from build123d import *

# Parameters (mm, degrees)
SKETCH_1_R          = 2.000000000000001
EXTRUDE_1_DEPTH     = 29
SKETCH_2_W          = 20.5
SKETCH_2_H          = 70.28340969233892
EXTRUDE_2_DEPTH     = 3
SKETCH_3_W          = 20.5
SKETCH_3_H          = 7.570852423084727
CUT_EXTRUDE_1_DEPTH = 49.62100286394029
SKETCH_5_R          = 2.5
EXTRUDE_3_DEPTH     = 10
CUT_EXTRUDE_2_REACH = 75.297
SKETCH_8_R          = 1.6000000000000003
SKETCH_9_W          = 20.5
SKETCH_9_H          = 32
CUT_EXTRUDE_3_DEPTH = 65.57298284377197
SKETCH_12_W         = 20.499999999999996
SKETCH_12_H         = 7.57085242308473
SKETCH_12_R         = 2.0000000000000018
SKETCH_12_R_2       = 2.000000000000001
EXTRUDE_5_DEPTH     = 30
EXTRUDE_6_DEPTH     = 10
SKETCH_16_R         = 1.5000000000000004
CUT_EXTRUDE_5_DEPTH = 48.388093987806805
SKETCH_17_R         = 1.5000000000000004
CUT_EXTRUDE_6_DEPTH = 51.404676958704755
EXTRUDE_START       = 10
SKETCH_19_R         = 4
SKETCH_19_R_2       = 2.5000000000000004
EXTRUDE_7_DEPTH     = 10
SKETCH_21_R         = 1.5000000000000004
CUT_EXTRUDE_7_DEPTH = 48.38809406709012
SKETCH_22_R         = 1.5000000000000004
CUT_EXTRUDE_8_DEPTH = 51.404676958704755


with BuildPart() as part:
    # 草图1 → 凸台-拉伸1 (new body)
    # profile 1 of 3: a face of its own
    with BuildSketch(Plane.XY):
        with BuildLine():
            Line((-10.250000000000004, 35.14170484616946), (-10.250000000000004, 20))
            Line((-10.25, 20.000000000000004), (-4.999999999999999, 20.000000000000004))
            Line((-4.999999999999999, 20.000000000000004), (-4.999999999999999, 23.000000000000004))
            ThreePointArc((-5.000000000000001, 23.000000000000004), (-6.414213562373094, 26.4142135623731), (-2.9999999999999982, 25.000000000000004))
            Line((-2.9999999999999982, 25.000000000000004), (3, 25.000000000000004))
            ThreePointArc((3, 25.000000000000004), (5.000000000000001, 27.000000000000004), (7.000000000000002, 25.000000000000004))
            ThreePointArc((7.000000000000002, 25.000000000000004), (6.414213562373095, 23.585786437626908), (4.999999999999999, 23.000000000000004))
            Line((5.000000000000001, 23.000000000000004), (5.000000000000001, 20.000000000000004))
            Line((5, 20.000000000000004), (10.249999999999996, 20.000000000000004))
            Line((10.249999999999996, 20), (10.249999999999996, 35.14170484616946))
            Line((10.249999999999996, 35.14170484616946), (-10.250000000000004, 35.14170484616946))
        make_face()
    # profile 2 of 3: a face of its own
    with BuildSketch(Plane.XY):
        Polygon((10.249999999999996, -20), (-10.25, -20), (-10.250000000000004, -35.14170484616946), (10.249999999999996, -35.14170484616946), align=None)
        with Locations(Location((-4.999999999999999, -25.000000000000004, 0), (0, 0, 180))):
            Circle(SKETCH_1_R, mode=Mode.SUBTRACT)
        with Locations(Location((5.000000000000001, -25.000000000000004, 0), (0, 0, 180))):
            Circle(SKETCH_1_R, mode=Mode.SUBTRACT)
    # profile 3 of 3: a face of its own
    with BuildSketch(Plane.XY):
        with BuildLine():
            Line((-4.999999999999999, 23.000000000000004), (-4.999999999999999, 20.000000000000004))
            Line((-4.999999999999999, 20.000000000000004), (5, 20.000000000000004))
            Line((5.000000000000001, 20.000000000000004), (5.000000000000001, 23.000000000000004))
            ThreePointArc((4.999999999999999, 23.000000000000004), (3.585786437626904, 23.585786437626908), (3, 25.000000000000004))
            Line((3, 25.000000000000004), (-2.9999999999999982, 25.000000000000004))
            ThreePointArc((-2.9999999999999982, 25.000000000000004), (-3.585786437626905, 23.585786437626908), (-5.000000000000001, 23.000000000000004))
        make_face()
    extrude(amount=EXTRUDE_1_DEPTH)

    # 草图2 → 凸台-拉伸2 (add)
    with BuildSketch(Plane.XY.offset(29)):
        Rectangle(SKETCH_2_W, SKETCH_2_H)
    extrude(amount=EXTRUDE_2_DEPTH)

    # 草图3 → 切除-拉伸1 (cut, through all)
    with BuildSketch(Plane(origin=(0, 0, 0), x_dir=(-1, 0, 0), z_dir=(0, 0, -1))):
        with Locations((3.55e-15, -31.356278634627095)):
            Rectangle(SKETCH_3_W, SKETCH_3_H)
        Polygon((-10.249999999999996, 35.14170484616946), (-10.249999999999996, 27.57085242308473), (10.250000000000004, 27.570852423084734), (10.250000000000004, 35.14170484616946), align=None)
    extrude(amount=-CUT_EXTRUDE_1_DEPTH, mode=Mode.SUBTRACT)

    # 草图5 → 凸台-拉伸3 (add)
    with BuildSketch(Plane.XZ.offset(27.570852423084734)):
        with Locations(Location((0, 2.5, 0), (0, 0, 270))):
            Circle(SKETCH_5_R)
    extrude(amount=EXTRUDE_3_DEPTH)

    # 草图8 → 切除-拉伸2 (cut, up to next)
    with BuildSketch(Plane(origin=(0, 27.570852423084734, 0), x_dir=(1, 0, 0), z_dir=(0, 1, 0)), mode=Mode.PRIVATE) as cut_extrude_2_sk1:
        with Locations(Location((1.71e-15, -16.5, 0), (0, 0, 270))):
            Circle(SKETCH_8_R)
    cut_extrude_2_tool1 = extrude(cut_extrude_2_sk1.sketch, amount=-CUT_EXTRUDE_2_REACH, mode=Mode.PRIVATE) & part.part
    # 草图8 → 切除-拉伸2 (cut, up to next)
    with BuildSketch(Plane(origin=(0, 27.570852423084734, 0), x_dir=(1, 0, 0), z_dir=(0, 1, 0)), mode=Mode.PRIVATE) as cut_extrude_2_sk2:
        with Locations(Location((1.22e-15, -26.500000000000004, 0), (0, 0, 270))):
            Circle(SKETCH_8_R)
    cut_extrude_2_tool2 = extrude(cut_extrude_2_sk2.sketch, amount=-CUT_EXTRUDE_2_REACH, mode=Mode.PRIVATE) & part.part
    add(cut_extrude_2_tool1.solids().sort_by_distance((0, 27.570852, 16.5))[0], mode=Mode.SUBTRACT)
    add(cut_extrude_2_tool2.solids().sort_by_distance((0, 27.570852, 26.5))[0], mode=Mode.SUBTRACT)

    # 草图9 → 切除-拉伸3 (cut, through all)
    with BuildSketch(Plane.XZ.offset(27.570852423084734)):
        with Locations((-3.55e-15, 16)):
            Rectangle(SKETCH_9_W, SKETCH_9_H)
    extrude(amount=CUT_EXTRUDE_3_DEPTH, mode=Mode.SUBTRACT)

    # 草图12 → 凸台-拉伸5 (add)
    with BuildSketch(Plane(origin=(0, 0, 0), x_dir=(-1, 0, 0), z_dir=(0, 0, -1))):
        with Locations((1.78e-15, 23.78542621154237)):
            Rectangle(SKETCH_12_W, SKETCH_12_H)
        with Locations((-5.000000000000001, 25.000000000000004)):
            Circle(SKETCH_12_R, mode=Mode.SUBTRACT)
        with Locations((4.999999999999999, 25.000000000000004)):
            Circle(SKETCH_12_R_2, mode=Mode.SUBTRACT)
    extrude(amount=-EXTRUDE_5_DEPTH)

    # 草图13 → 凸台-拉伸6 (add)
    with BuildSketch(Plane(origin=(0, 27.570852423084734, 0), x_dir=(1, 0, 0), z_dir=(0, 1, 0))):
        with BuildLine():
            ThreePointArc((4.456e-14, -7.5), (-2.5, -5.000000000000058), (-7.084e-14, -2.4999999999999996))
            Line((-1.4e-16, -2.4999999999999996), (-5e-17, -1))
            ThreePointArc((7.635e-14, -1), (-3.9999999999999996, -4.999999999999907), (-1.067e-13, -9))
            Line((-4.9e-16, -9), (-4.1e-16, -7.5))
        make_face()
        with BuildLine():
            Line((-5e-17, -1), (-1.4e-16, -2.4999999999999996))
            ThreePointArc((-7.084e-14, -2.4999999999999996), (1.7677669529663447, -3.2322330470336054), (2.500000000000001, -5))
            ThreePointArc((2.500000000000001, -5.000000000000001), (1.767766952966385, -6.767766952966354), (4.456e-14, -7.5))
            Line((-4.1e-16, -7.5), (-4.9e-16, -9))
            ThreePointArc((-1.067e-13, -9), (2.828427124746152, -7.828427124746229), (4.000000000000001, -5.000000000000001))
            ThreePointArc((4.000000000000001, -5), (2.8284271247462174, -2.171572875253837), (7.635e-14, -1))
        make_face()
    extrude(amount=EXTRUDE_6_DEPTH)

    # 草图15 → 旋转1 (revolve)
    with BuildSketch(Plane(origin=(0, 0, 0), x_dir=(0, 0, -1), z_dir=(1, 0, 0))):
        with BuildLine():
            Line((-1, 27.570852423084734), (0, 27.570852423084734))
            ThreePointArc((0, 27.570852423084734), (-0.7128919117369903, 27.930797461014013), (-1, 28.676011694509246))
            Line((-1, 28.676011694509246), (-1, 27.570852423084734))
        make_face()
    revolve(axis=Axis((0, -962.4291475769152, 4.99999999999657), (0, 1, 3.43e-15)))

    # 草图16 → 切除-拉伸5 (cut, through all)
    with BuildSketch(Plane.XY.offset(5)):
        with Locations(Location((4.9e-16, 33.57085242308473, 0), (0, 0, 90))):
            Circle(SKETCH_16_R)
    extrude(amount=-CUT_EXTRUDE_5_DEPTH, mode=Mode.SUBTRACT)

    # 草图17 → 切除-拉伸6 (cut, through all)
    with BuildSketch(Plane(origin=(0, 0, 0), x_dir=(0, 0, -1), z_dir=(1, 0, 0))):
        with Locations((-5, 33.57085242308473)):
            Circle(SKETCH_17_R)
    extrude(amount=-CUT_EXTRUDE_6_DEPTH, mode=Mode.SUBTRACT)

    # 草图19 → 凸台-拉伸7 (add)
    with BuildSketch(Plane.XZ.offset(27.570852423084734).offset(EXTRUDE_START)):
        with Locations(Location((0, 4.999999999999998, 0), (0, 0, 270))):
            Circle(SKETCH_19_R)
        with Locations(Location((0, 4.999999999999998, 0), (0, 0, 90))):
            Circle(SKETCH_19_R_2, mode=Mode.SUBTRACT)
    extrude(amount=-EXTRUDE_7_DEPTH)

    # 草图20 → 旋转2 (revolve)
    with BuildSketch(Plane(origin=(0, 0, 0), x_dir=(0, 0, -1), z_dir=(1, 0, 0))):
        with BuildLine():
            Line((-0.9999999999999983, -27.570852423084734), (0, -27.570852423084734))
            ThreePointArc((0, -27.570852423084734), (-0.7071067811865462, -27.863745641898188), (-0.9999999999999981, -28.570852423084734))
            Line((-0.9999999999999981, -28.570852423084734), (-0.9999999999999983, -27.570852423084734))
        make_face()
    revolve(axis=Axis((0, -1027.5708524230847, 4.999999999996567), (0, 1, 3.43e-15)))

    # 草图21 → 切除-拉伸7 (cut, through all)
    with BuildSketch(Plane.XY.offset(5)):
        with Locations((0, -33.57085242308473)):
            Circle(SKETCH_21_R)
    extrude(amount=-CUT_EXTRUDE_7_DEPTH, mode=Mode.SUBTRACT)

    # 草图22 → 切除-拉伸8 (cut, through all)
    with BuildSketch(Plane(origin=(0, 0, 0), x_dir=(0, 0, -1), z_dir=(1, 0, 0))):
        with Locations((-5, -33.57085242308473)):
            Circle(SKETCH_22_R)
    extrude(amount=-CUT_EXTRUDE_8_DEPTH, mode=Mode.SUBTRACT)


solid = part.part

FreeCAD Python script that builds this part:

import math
import FreeCAD as App
import Part
import Sketcher

V = App.Vector


def add_polygon(sketch, points):
    """Adds a closed chain of lines whose ends are joined by coincident constraints."""
    first, n = sketch.GeometryCount, len(points)
    for a, b in zip(points, points[1:] + points[:1]):
        sketch.addGeometry(Part.LineSegment(App.Vector(*a, 0), App.Vector(*b, 0)), False)
    for i in range(n):
        sketch.addConstraint(Sketcher.Constraint("Coincident", first + i, 2, first + (i + 1) % n, 1))

doc = App.newDocument("Part")
body = doc.addObject("PartDesign::Body", "Body")
body.AllowCompound = True

# Sketch on XY plane
sketch1 = doc.addObject("Sketcher::SketchObject", "Sketch")
body.addObject(sketch1)
sketch1.AttachmentSupport = (doc.XY_Plane, [""])
sketch1.MapMode = "FlatFace"
add_polygon(sketch1, [(-10.2, 35.1), (-10.2, 20), (10.2, 20), (10.2, 35.1)])  # lines 0-3
sketch1.addGeometry(Part.Circle(V(-5, 25, 0), V(0, 0, 1), 2), False)  # 4
sketch1.addGeometry(Part.Circle(V(5, 25, 0), V(0, 0, 1), 2), False)  # 5
add_polygon(sketch1, [(10.2, -20), (-10.2, -20), (-10.2, -35.1), (10.2, -35.1)])  # lines 6-9
sketch1.addGeometry(Part.Circle(V(-5, -25, 0), V(0, 0, 1), 2), False)  # 10
sketch1.addGeometry(Part.Circle(V(5, -25, 0), V(0, 0, 1), 2), False)  # 11
sketch1.addConstraint([
    Sketcher.Constraint("Vertical", 0),
    Sketcher.Constraint("Horizontal", 1),
    Sketcher.Constraint("Vertical", 2),
    Sketcher.Constraint("Horizontal", 3),
    Sketcher.Constraint("Horizontal", 6),
    Sketcher.Constraint("Vertical", 7),
    Sketcher.Constraint("Horizontal", 8),
    Sketcher.Constraint("Vertical", 9),
    Sketcher.Constraint("Equal", 4, 5),
    Sketcher.Constraint("Equal", 5, 10),
    Sketcher.Constraint("Equal", 10, 11),
    Sketcher.Constraint("Symmetric", 5, 3, 10, 3, -1, 1),
    Sketcher.Constraint("Symmetric", 4, 3, 11, 3, -1, 1),
    Sketcher.Constraint("Symmetric", 1, 2, 6, 2, -1, 1),
    Sketcher.Constraint("Symmetric", 3, 2, 8, 2, -1, 1),
    Sketcher.Constraint("Symmetric", 4, 3, 5, 3, -2),
    Sketcher.Constraint("Vertical", 3, 2, 6, 2),
    Sketcher.Constraint("Diameter", 4, 4.0),
    Sketcher.Constraint("DistanceX", 1, 1, 1, 2, 20.5),
    Sketcher.Constraint("DistanceX", 4, 3, -1, 1, 5.0),
    Sketcher.Constraint("DistanceY", -1, 1, 4, 3, 25.0),
    Sketcher.Constraint("DistanceY", -1, 1, 0, 2, 20.0),
    Sketcher.Constraint("DistanceY", 0, 2, 0, 1, 15.141705),
])
pad1 = doc.addObject("PartDesign::Pad", "Pad")
body.addObject(pad1)
pad1.Profile = sketch1
pad1.Length = 29

# Sketch on XY plane
sketch2 = doc.addObject("Sketcher::SketchObject", "Sketch001")
body.addObject(sketch2)
sketch2.AttachmentSupport = (doc.XY_Plane, [""])
sketch2.MapMode = "FlatFace"
sketch2.AttachmentOffset = App.Placement(V(0, 0, 29), App.Rotation())
add_polygon(sketch2, [(-10, 35), (-10, -35), (10, -35), (10, 35)])  # lines 0-3
sketch2.addConstraint([
    Sketcher.Constraint("Vertical", 0),
    Sketcher.Constraint("Horizontal", 1),
    Sketcher.Constraint("Vertical", 2),
    Sketcher.Constraint("Horizontal", 3),
    Sketcher.Constraint("Symmetric", 0, 2, 2, 2, -1, 1),
    Sketcher.Constraint("DistanceX", 1, 1, 1, 2, 20.5),
    Sketcher.Constraint("DistanceY", 0, 2, 0, 1, 70.28341),
])
pad2 = doc.addObject("PartDesign::Pad", "Pad001")
body.addObject(pad2)
pad2.Profile = sketch2
pad2.Length = 3

# Sketch on XY plane
sketch3 = doc.addObject("Sketcher::SketchObject", "Sketch002")
body.addObject(sketch3)
sketch3.AttachmentSupport = (doc.XY_Plane, [""])
sketch3.MapMode = "FlatFace"
add_polygon(sketch3, [(10, -28), (10, -35), (-10, -35), (-10, -28)])  # lines 0-3
add_polygon(sketch3, [(10, 35), (10, 28), (-10, 28), (-10, 35)])  # lines 4-7
sketch3.addConstraint([
    Sketcher.Constraint("Vertical", 0),
    Sketcher.Constraint("Horizontal", 1),
    Sketcher.Constraint("Vertical", 2),
    Sketcher.Constraint("Horizontal", 3),
    Sketcher.Constraint("Vertical", 4),
    Sketcher.Constraint("Horizontal", 5),
    Sketcher.Constraint("Vertical", 6),
    Sketcher.Constraint("Horizontal", 7),
    Sketcher.Constraint("Symmetric", 2, 2, 4, 2, -1, 1),
    Sketcher.Constraint("Symmetric", 0, 2, 6, 2, -1, 1),
    Sketcher.Constraint("Vertical", 3, 2, 4, 2),
    Sketcher.Constraint("DistanceX", 1, 2, 1, 1, 20.5),
    Sketcher.Constraint("DistanceY", 0, 2, 0, 1, 7.570852),
    Sketcher.Constraint("DistanceY", 1, 2, 6, 2, 70.28341),
])
pocket1 = doc.addObject("PartDesign::Pocket", "Pocket")
body.addObject(pocket1)
pocket1.Profile = sketch3
pocket1.Type = "ThroughAll"
pocket1.Reversed = True

# Sketch on XZ plane
sketch4 = doc.addObject("Sketcher::SketchObject", "Sketch003")
body.addObject(sketch4)
sketch4.AttachmentSupport = (doc.XZ_Plane, [""])
sketch4.MapMode = "FlatFace"
sketch4.AttachmentOffset = App.Placement(V(0, 0, 27.570852), App.Rotation())
sketch4.addGeometry(Part.Circle(V(0, 2.5, 0), V(0, 0, 1), 2.5), False)
sketch4.addConstraint([
    Sketcher.Constraint("PointOnObject", 0, 3, -2),
    Sketcher.Constraint("Diameter", 0, 5.0),
    Sketcher.Constraint("DistanceY", -1, 1, 0, 3, 2.5),
])
pad3 = doc.addObject("PartDesign::Pad", "Pad002")
body.addObject(pad3)
pad3.Profile = sketch4
pad3.Length = 10

# Sketch on XZ plane
sketch5 = doc.addObject("Sketcher::SketchObject", "Sketch004")
body.addObject(sketch5)
sketch5.AttachmentSupport = (doc.XZ_Plane, [""])
sketch5.MapMode = "FlatFace"
sketch5.AttachmentOffset = App.Placement(V(0, 0, -27.570852), App.Rotation())
sketch5.addGeometry(Part.Circle(V(0, 16.5, 0), V(0, 0, 1), 1.6), False)
sketch5.addConstraint([
    Sketcher.Constraint("PointOnObject", 0, 3, -2),
    Sketcher.Constraint("Diameter", 0, 3.2),
    Sketcher.Constraint("DistanceY", -1, 1, 0, 3, 16.5),
])
pocket2 = doc.addObject("PartDesign::Pocket", "Pocket001")
body.addObject(pocket2)
pocket2.Profile = sketch5
pocket2.Type = "UpToFirst"
pocket2.Reversed = True

# Sketch on XZ plane
sketch6 = doc.addObject("Sketcher::SketchObject", "Sketch005")
body.addObject(sketch6)
sketch6.AttachmentSupport = (doc.XZ_Plane, [""])
sketch6.MapMode = "FlatFace"
sketch6.AttachmentOffset = App.Placement(V(0, 0, -27.570852), App.Rotation())
sketch6.addGeometry(Part.Circle(V(0, 26.5, 0), V(0, 0, 1), 1.6), False)
sketch6.addConstraint([
    Sketcher.Constraint("PointOnObject", 0, 3, -2),
    Sketcher.Constraint("Diameter", 0, 3.2),
    Sketcher.Constraint("DistanceY", -1, 1, 0, 3, 26.5),
])
pocket3 = doc.addObject("PartDesign::Pocket", "Pocket002")
body.addObject(pocket3)
pocket3.Profile = sketch6
pocket3.Type = "UpToFirst"
pocket3.Reversed = True

# Sketch on XZ plane
sketch7 = doc.addObject("Sketcher::SketchObject", "Sketch006")
body.addObject(sketch7)
sketch7.AttachmentSupport = (doc.XZ_Plane, [""])
sketch7.MapMode = "FlatFace"
sketch7.AttachmentOffset = App.Placement(V(0, 0, 27.570852), App.Rotation())
add_polygon(sketch7, [(-10, 32), (-10, 0), (10, 0), (10, 32)])  # lines 0-3
sketch7.addConstraint([
    Sketcher.Constraint("Vertical", 0),
    Sketcher.Constraint("Horizontal", 1),
    Sketcher.Constraint("Vertical", 2),
    Sketcher.Constraint("Horizontal", 3),
    Sketcher.Constraint("Symmetric", 0, 2, 1, 2, -1, 1),
    Sketcher.Constraint("DistanceY", 0, 2, 0, 1, 32.0),
    Sketcher.Constraint("DistanceX", 1, 1, 1, 2, 20.5),
])
pocket4 = doc.addObject("PartDesign::Pocket", "Pocket003")
body.addObject(pocket4)
pocket4.Profile = sketch7
pocket4.Type = "ThroughAll"
pocket4.Reversed = True

# Sketch on XY plane
sketch8 = doc.addObject("Sketcher::SketchObject", "Sketch007")
body.addObject(sketch8)
sketch8.AttachmentSupport = (doc.XY_Plane, [""])
sketch8.MapMode = "FlatFace"
add_polygon(sketch8, [(10.2, 27.6), (10.2, 20), (-10.2, 20), (-10.2, 27.6)])  # lines 0-3
sketch8.addGeometry(Part.Circle(V(5, 25, 0), V(0, 0, 1), 2), False)  # 4
sketch8.addGeometry(Part.Circle(V(-5, 25, 0), V(0, 0, 1), 2), False)  # 5
sketch8.addConstraint([
    Sketcher.Constraint("Vertical", 0),
    Sketcher.Constraint("Horizontal", 1),
    Sketcher.Constraint("Vertical", 2),
    Sketcher.Constraint("Horizontal", 3),
    Sketcher.Constraint("Equal", 4, 5),
    Sketcher.Constraint("Symmetric", 4, 3, 5, 3, -2),
    Sketcher.Constraint("Diameter", 4, 4.0),
    Sketcher.Constraint("DistanceX", 1, 2, 1, 1, 20.5),
    Sketcher.Constraint("DistanceX", -1, 1, 4, 3, 5.0),
    Sketcher.Constraint("DistanceY", -1, 1, 4, 3, 25.0),
    Sketcher.Constraint("DistanceY", -1, 1, 0, 2, 20.0),
    Sketcher.Constraint("DistanceX", -1, 1, 0, 2, 10.25),
    Sketcher.Constraint("DistanceY", 0, 2, 0, 1, 7.570852),
])
pad4 = doc.addObject("PartDesign::Pad", "Pad003")
body.addObject(pad4)
pad4.Profile = sketch8
pad4.Length = 30

# Sketch on XZ plane
sketch9 = doc.addObject("Sketcher::SketchObject", "Sketch008")
body.addObject(sketch9)
sketch9.AttachmentSupport = (doc.XZ_Plane, [""])
sketch9.MapMode = "FlatFace"
sketch9.AttachmentOffset = App.Placement(V(0, 0, -27.570852), App.Rotation())
sketch9.addGeometry([
    Part.Circle(V(0, 5, 0), V(0, 0, 1), 4),
    Part.Circle(V(0, 5, 0), V(0, 0, 1), 2.5),
], False)
sketch9.addConstraint([
    Sketcher.Constraint("Coincident", 1, 3, 0, 3),
    Sketcher.Constraint("PointOnObject", 0, 3, -2),
    Sketcher.Constraint("Diameter", 0, 8.0),
    Sketcher.Constraint("Diameter", 1, 5.0),
    Sketcher.Constraint("DistanceY", -1, 1, 0, 3, 5.0),
])
pad5 = doc.addObject("PartDesign::Pad", "Pad004")
body.addObject(pad5)
pad5.Profile = sketch9
pad5.Length = 10
pad5.Reversed = True

# Sketch on YZ plane
sketch10 = doc.addObject("Sketcher::SketchObject", "Sketch009")
body.addObject(sketch10)
sketch10.AttachmentSupport = (doc.YZ_Plane, [""])
sketch10.MapMode = "FlatFace"
sketch10.addGeometry([
    Part.LineSegment(V(27.6, 1, 0), V(27.6, 0, 0)),
    Part.ArcOfCircle(Part.Circle(V(28.7, -0.1, 0), V(0, 0, 1), 1.1), math.radians(90), math.radians(174)),
    Part.LineSegment(V(28.7, 1, 0), V(27.6, 1, 0)),
], False)
sketch10.addGeometry(Part.LineSegment(V(27.6, 5, 0), V(28.7, 5, 0)), True)  # axis
sketch10.addConstraint([
    Sketcher.Constraint("Coincident", 0, 2, 1, 2),
    Sketcher.Constraint("Tangent", 1, 1, 2, 1),
    Sketcher.Constraint("Coincident", 2, 2, 0, 1),
    Sketcher.Constraint("Vertical", 0),
    Sketcher.Constraint("Horizontal", 2),
    Sketcher.Constraint("Horizontal", 3),
    Sketcher.Constraint("PointOnObject", 0, 2, -1),
    Sketcher.Constraint("Vertical", 2, 2, 3, 1),
    Sketcher.Constraint("Vertical", 1, 1, 3, 2),
    Sketcher.Constraint("DistanceY", 0, 2, 0, 1, 1.0),
    Sketcher.Constraint("DistanceY", -1, 1, 3, 1, 5.0),
    Sketcher.Constraint("Radius", 1, 1.110689),
    Sketcher.Constraint("DistanceX", -1, 1, 1, 3, 28.676012),
])
revolution = doc.addObject("PartDesign::Revolution", "Revolution")
body.addObject(revolution)
revolution.Profile = sketch10
revolution.ReferenceAxis = (sketch10, ["Axis0"])
revolution.Angle = 360

# Sketch on XY plane
sketch11 = doc.addObject("Sketcher::SketchObject", "Sketch010")
body.addObject(sketch11)
sketch11.AttachmentSupport = (doc.XY_Plane, [""])
sketch11.MapMode = "FlatFace"
sketch11.AttachmentOffset = App.Placement(V(0, 0, 5), App.Rotation())
sketch11.addGeometry(Part.Circle(V(0, 33.6, 0), V(0, 0, 1), 1.5), False)
sketch11.addConstraint([
    Sketcher.Constraint("PointOnObject", 0, 3, -2),
    Sketcher.Constraint("Diameter", 0, 3.0),
    Sketcher.Constraint("DistanceY", -1, 1, 0, 3, 33.570852),
])
pocket5 = doc.addObject("PartDesign::Pocket", "Pocket004")
body.addObject(pocket5)
pocket5.Profile = sketch11
pocket5.Type = "ThroughAll"

# Sketch on YZ plane
sketch12 = doc.addObject("Sketcher::SketchObject", "Sketch011")
body.addObject(sketch12)
sketch12.AttachmentSupport = (doc.YZ_Plane, [""])
sketch12.MapMode = "FlatFace"
sketch12.addGeometry(Part.Circle(V(33.6, 5, 0), V(0, 0, 1), 1.5), False)
sketch12.addConstraint([
    Sketcher.Constraint("Diameter", 0, 3.0),
    Sketcher.Constraint("DistanceY", -1, 1, 0, 3, 5.0),
    Sketcher.Constraint("DistanceX", -1, 1, 0, 3, 33.570852),
])
pocket6 = doc.addObject("PartDesign::Pocket", "Pocket005")
body.addObject(pocket6)
pocket6.Profile = sketch12
pocket6.Type = "ThroughAll"

# Sketch on XZ plane
sketch13 = doc.addObject("Sketcher::SketchObject", "Sketch012")
body.addObject(sketch13)
sketch13.AttachmentSupport = (doc.XZ_Plane, [""])
sketch13.MapMode = "FlatFace"
sketch13.AttachmentOffset = App.Placement(V(0, 0, 37.570852), App.Rotation())
sketch13.addGeometry([
    Part.Circle(V(0, 5, 0), V(0, 0, 1), 4),
    Part.Circle(V(0, 5, 0), V(0, 0, 1), 2.5),
], False)
sketch13.addConstraint([
    Sketcher.Constraint("Coincident", 1, 3, 0, 3),
    Sketcher.Constraint("PointOnObject", 0, 3, -2),
    Sketcher.Constraint("Diameter", 0, 8.0),
    Sketcher.Constraint("Diameter", 1, 5.0),
    Sketcher.Constraint("DistanceY", -1, 1, 0, 3, 5.0),
])
pad6 = doc.addObject("PartDesign::Pad", "Pad005")
body.addObject(pad6)
pad6.Profile = sketch13
pad6.Length = 10
pad6.Reversed = True

# Sketch on YZ plane
sketch14 = doc.addObject("Sketcher::SketchObject", "Sketch013")
body.addObject(sketch14)
sketch14.AttachmentSupport = (doc.YZ_Plane, [""])
sketch14.MapMode = "FlatFace"
sketch14.addGeometry([
    Part.LineSegment(V(-27.6, 0, 0), V(-27.6, 1, 0)),
    Part.LineSegment(V(-27.6, 1, 0), V(-28.6, 1, 0)),
    Part.ArcOfCircle(Part.Circle(V(-28.6, 0, 0), V(0, 0, 1), 1), math.radians(0), math.radians(90)),
], False)
sketch14.addGeometry(Part.LineSegment(V(-28.6, 5, 0), V(-27.6, 5, 0)), True)  # axis
sketch14.addConstraint([
    Sketcher.Constraint("Coincident", 0, 2, 1, 1),
    Sketcher.Constraint("Tangent", 1, 2, 2, 2),
    Sketcher.Constraint("Tangent", 2, 1, 0, 1),
    Sketcher.Constraint("Vertical", 0),
    Sketcher.Constraint("Horizontal", 1),
    Sketcher.Constraint("Horizontal", 3),
    Sketcher.Constraint("PointOnObject", 2, 3, -1),
    Sketcher.Constraint("Vertical", 1, 2, 3, 1),
    Sketcher.Constraint("Vertical", 2, 1, 3, 2),
    Sketcher.Constraint("Radius", 2, 1.0),
    Sketcher.Constraint("DistanceY", -1, 1, 3, 1, 5.0),
    Sketcher.Constraint("DistanceX", 2, 3, -1, 1, 28.570852),
])
revolution2 = doc.addObject("PartDesign::Revolution", "Revolution001")
body.addObject(revolution2)
revolution2.Profile = sketch14
revolution2.ReferenceAxis = (sketch14, ["Axis0"])
revolution2.Angle = 360

# Sketch on XY plane
sketch15 = doc.addObject("Sketcher::SketchObject", "Sketch014")
body.addObject(sketch15)
sketch15.AttachmentSupport = (doc.XY_Plane, [""])
sketch15.MapMode = "FlatFace"
sketch15.AttachmentOffset = App.Placement(V(0, 0, 5), App.Rotation())
sketch15.addGeometry(Part.Circle(V(0, -33.6, 0), V(0, 0, 1), 1.5), False)
sketch15.addConstraint([
    Sketcher.Constraint("PointOnObject", 0, 3, -2),
    Sketcher.Constraint("Diameter", 0, 3.0),
    Sketcher.Constraint("DistanceY", 0, 3, -1, 1, 33.570852),
])
pocket7 = doc.addObject("PartDesign::Pocket", "Pocket006")
body.addObject(pocket7)
pocket7.Profile = sketch15
pocket7.Type = "ThroughAll"

# Sketch on YZ plane
sketch16 = doc.addObject("Sketcher::SketchObject", "Sketch015")
body.addObject(sketch16)
sketch16.AttachmentSupport = (doc.YZ_Plane, [""])
sketch16.MapMode = "FlatFace"
sketch16.addGeometry(Part.Circle(V(-33.6, 5, 0), V(0, 0, 1), 1.5), False)
sketch16.addConstraint([
    Sketcher.Constraint("Diameter", 0, 3.0),
    Sketcher.Constraint("DistanceY", -1, 1, 0, 3, 5.0),
    Sketcher.Constraint("DistanceX", 0, 3, -1, 1, 33.570852),
])
pocket8 = doc.addObject("PartDesign::Pocket", "Pocket007")
body.addObject(pocket8)
pocket8.Profile = sketch16
pocket8.Type = "ThroughAll"

doc.recompute()
